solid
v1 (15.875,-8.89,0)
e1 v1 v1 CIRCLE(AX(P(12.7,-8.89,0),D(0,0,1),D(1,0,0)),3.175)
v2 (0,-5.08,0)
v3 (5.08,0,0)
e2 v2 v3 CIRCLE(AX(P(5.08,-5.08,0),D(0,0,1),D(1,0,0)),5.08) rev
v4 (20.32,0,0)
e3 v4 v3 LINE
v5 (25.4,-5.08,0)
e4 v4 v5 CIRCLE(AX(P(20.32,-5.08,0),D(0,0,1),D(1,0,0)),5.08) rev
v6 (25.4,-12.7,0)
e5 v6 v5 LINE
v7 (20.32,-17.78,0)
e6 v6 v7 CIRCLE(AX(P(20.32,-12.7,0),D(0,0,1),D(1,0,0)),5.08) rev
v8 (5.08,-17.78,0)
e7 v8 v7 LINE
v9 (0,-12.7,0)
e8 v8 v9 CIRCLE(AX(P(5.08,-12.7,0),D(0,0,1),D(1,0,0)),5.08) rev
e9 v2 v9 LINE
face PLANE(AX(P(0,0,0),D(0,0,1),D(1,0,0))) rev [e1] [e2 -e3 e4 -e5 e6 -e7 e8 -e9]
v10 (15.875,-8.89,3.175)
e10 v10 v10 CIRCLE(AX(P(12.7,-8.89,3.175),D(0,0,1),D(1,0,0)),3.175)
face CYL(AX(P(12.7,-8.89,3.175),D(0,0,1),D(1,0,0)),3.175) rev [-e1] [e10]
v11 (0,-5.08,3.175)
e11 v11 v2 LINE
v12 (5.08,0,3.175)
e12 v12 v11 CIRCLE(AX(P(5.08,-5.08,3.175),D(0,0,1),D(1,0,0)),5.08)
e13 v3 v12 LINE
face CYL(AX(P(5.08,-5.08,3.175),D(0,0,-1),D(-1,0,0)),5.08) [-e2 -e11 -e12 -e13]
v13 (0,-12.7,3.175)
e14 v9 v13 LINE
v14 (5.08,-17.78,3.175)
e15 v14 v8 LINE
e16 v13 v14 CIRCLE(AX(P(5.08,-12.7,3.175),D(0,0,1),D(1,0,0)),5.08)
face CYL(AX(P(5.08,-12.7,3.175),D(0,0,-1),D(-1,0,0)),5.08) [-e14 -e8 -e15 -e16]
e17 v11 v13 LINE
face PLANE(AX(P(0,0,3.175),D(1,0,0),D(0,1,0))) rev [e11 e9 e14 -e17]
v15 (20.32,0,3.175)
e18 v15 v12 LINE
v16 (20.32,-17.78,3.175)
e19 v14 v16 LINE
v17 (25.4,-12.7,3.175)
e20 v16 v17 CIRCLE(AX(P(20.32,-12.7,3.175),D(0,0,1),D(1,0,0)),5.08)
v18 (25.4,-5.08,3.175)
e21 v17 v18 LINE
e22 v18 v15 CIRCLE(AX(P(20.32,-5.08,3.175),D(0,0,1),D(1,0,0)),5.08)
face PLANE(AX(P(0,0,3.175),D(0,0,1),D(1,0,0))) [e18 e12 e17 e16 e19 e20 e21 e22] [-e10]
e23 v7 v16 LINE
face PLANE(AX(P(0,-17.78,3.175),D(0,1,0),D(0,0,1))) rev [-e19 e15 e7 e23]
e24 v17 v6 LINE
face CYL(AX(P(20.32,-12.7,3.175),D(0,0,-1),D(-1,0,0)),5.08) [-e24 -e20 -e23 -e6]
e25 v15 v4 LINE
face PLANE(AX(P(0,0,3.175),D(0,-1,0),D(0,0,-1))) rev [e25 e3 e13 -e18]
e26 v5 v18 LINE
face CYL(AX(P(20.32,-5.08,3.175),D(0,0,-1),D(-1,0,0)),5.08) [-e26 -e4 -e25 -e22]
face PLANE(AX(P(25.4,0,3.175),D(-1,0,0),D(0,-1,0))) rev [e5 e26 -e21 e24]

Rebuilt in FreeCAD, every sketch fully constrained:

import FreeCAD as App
import Part
import Sketcher

V = App.Vector
Q = App.Units.Quantity


def edges_at(feature, points):
    """Names of the edges that pass closest to the given points."""
    edges = feature.Shape.Edges
    near = lambda p: min(range(len(edges)), key=lambda i: edges[i].distToShape(Part.Vertex(*p))[0])
    return sorted({f"Edge{near(p) + 1}" for p in points})

doc = App.newDocument("Part")
body = doc.addObject("PartDesign::Body", "Body")

sketch1 = body.newObject("Sketcher::SketchObject", "Sketch")
sketch1.AttachmentSupport = (doc.getObject("XY_Plane"), [""])
sketch1.MapMode = "FlatFace"
sketch1.addGeometry(Part.LineSegment(V(0, 0, 0), V(0, -18, 0)), False)
sketch1.addGeometry(Part.LineSegment(V(0, -18, 0), V(25, -18, 0)), False)
sketch1.addGeometry(Part.LineSegment(V(25, -18, 0), V(25, 0, 0)), False)
sketch1.addGeometry(Part.LineSegment(V(25, 0, 0), V(0, 0, 0)), False)
sketch1.addConstraint(Sketcher.Constraint("Coincident", 0, 2, 1, 1))
sketch1.addConstraint(Sketcher.Constraint("Coincident", 1, 2, 2, 1))
sketch1.addConstraint(Sketcher.Constraint("Coincident", 2, 2, 3, 1))
sketch1.addConstraint(Sketcher.Constraint("Coincident", 3, 2, 0, 1))
sketch1.addConstraint(Sketcher.Constraint("Vertical", 0))
sketch1.addConstraint(Sketcher.Constraint("Horizontal", 1))
sketch1.addConstraint(Sketcher.Constraint("Vertical", 2))
sketch1.addConstraint(Sketcher.Constraint("Horizontal", 3))
sketch1.addConstraint(Sketcher.Constraint("Coincident", 3, 2, -1, 1))
sketch1.addConstraint(Sketcher.Constraint("DistanceX", 1, 1, 1, 2, Q("1 in")))
sketch1.addConstraint(Sketcher.Constraint("DistanceY", 0, 2, 0, 1, Q("0.7 in")))
pad1 = body.newObject("PartDesign::Pad", "Pad")
pad1.Profile = sketch1
pad1.Length = Q("0.125 in")

sketch2 = body.newObject("Sketcher::SketchObject", "Sketch001")
sketch2.AttachmentSupport = (doc.getObject("XY_Plane"), [""])
sketch2.MapMode = "FlatFace"
sketch2.AttachmentOffset = App.Placement(V(0, 0, 0.125 * 25.4), App.Rotation())
sketch2.addGeometry(Part.Circle(V(12.7, -8.9, 0), V(0, 0, 1), 3.2), False)
sketch2.addConstraint(Sketcher.Constraint("Diameter", 0, Q("0.25 in")))
sketch2.addConstraint(Sketcher.Constraint("DistanceX", -1, 1, 0, 3, Q("0.5 in")))
sketch2.addConstraint(Sketcher.Constraint("DistanceY", 0, 3, -1, 1, Q("0.35 in")))
doc.recompute()
hole = body.newObject("PartDesign::Hole", "Hole")
hole.Profile = sketch2
hole.ThreadType = "None"
hole.Diameter = Q("0.25 in")
hole.DepthType = "ThroughAll"
doc.recompute()

fillet = body.newObject("PartDesign::Fillet", "Fillet")
fillet.Base = (hole, edges_at(hole, [
    (0, 0, 1.587),
    (25.4, 0, 1.587),
    (25.4, -17.78, 1.587),
    (0, -17.78, 1.587),
]))
fillet.Radius = Q("0.2 in")

doc.recompute()
